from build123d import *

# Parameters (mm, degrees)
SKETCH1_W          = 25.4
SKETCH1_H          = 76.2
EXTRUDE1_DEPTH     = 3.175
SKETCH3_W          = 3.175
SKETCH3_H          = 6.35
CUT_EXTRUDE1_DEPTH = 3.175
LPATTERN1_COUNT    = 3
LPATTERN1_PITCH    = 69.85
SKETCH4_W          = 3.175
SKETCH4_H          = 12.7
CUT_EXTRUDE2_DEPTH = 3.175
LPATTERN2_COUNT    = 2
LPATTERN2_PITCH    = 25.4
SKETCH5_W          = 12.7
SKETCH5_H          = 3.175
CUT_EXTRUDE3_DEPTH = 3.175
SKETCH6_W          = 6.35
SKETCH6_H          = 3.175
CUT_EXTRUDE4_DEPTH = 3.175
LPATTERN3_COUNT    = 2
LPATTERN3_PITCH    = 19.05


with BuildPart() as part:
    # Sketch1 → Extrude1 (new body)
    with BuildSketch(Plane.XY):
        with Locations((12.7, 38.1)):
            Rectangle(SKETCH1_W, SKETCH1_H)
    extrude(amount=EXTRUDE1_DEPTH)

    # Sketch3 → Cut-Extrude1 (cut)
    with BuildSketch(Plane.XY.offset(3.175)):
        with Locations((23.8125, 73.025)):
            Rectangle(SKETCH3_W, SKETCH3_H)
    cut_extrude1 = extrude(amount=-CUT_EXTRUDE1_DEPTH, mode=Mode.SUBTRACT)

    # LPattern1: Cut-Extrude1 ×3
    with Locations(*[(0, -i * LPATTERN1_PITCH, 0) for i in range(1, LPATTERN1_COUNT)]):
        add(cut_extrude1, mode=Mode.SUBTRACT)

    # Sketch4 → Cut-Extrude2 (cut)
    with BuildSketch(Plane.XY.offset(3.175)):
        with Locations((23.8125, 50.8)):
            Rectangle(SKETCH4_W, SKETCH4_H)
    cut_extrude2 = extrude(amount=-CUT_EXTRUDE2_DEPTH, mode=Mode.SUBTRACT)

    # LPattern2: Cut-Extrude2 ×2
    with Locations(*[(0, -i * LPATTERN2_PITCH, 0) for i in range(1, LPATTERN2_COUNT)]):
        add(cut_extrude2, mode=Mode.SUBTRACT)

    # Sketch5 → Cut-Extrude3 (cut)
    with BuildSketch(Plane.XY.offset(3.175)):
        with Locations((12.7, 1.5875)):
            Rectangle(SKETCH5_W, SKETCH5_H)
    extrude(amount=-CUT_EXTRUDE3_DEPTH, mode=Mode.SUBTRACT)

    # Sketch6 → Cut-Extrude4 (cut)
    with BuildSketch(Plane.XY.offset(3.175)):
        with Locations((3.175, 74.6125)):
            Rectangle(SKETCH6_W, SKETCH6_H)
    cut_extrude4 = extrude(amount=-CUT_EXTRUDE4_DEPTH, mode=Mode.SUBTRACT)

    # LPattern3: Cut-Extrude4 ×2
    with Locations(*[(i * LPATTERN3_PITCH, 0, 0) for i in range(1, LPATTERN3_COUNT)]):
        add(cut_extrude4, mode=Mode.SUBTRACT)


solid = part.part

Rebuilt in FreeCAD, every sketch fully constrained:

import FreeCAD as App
import Part
import Sketcher

V = App.Vector
Q = App.Units.Quantity

doc = App.newDocument("Part")
params = doc.addObject("Spreadsheet::Sheet", "Params")
for row, (alias, value) in enumerate([
    ("sketch1_width", "1 in"),
    ("sketch1_height", "3 in"),
    ("pad1_length", "0.125 in"),
    ("sketch2_height", "0.25 in"),
    ("sketch2_width", "0.125 in"),
    ("pocket1_length", "0.125 in"),
    ("linearpattern_pitch", "2.75 in"),
    ("sketch3_height", "0.5 in"),
    ("sketch3_width", "0.125 in"),
    ("pocket2_length", "0.125 in"),
    ("linearpattern2_pitch", "1 in"),
    ("sketch4_width", "0.5 in"),
    ("sketch4_height", "0.125 in"),
    ("pocket3_length", "0.125 in"),
    ("sketch5_width", "0.25 in"),
    ("sketch5_height", "0.125 in"),
    ("pocket4_length", "0.125 in"),
    ("linearpattern3_pitch", "0.75 in"),
], start=1):
    params.set(f"A{row}", alias)
    params.set(f"B{row}", "=" + value)
    params.setAlias(f"B{row}", alias)

body = doc.addObject("PartDesign::Body", "Body")

# Sketch on XY plane
sketch1 = body.newObject("Sketcher::SketchObject", "Sketch")
sketch1.AttachmentSupport = (doc.getObject("XY_Plane"), [""])
sketch1.MapMode = "FlatFace"
sketch1.addGeometry(Part.LineSegment(V(0, 76, 0), V(0, 0, 0)), False)
sketch1.addGeometry(Part.LineSegment(V(0, 0, 0), V(25, 0, 0)), False)
sketch1.addGeometry(Part.LineSegment(V(25, 0, 0), V(25, 76, 0)), False)
sketch1.addGeometry(Part.LineSegment(V(25, 76, 0), V(0, 76, 0)), False)
sketch1.addConstraint(Sketcher.Constraint("Coincident", 0, 2, 1, 1))
sketch1.addConstraint(Sketcher.Constraint("Coincident", 1, 2, 2, 1))
sketch1.addConstraint(Sketcher.Constraint("Coincident", 2, 2, 3, 1))
sketch1.addConstraint(Sketcher.Constraint("Coincident", 3, 2, 0, 1))
sketch1.addConstraint(Sketcher.Constraint("Vertical", 0))
sketch1.addConstraint(Sketcher.Constraint("Horizontal", 1))
sketch1.addConstraint(Sketcher.Constraint("Vertical", 2))
sketch1.addConstraint(Sketcher.Constraint("Horizontal", 3))
sketch1.addConstraint(Sketcher.Constraint("Coincident", 0, 2, -1, 1))
sketch1.addConstraint(Sketcher.Constraint("DistanceX", 1, 1, 1, 2, Q("1 in")))
sketch1.addConstraint(Sketcher.Constraint("DistanceY", 0, 2, 0, 1, Q("3 in")))
sketch1.setExpression("Constraints[9]", "Params.sketch1_width")
sketch1.setExpression("Constraints[10]", "Params.sketch1_height")
pad1 = body.newObject("PartDesign::Pad", "Pad")
pad1.Profile = sketch1
pad1.setExpression("Length", "Params.pad1_length")

# Sketch on XY plane
sketch2 = body.newObject("Sketcher::SketchObject", "Sketch001")
sketch2.AttachmentSupport = (doc.getObject("XY_Plane"), [""])
sketch2.MapMode = "FlatFace"
sketch2.AttachmentOffset = App.Placement(V(0, 0, 0.125 * 25.4), App.Rotation())
sketch2.addGeometry(Part.LineSegment(V(22.2, 76.2, 0), V(22.2, 69.8, 0)), False)
sketch2.addGeometry(Part.LineSegment(V(22.2, 69.8, 0), V(25.4, 69.8, 0)), False)
sketch2.addGeometry(Part.LineSegment(V(25.4, 69.8, 0), V(25.4, 76.2, 0)), False)
sketch2.addGeometry(Part.LineSegment(V(25.4, 76.2, 0), V(22.2, 76.2, 0)), False)
sketch2.addConstraint(Sketcher.Constraint("Coincident", 0, 2, 1, 1))
sketch2.addConstraint(Sketcher.Constraint("Coincident", 1, 2, 2, 1))
sketch2.addConstraint(Sketcher.Constraint("Coincident", 2, 2, 3, 1))
sketch2.addConstraint(Sketcher.Constraint("Coincident", 3, 2, 0, 1))
sketch2.addConstraint(Sketcher.Constraint("Vertical", 0))
sketch2.addConstraint(Sketcher.Constraint("Horizontal", 1))
sketch2.addConstraint(Sketcher.Constraint("Vertical", 2))
sketch2.addConstraint(Sketcher.Constraint("Horizontal", 3))
sketch2.addConstraint(Sketcher.Constraint("DistanceX", -1, 1, 1, 2, Q("1 in")))
sketch2.addConstraint(Sketcher.Constraint("DistanceY", -1, 1, 2, 2, Q("3 in")))
sketch2.addConstraint(Sketcher.Constraint("DistanceY", 0, 2, 0, 1, Q("0.25 in")))
sketch2.addConstraint(Sketcher.Constraint("DistanceX", 1, 1, 1, 2, Q("0.125 in")))
sketch2.setExpression("Constraints[10]", "Params.sketch2_height")
sketch2.setExpression("Constraints[11]", "Params.sketch2_width")
pocket1 = body.newObject("PartDesign::Pocket", "Pocket")
pocket1.Profile = sketch2
pocket1.setExpression("Length", "Params.pocket1_length")
doc.recompute()

linearpattern = body.newObject("PartDesign::LinearPattern", "LinearPattern")
linearpattern.Originals = [pocket1]
linearpattern.Direction = (doc.getObject("Y_Axis"), [""])
linearpattern.Mode = "offset"
linearpattern.setExpression("Offset", "Params.linearpattern_pitch")
linearpattern.Occurrences = 3
linearpattern.Reversed = True
body.Tip = linearpattern

# Sketch on XY plane
sketch3 = body.newObject("Sketcher::SketchObject", "Sketch002")
sketch3.AttachmentSupport = (doc.getObject("XY_Plane"), [""])
sketch3.MapMode = "FlatFace"
sketch3.AttachmentOffset = App.Placement(V(0, 0, 0.125 * 25.4), App.Rotation())
sketch3.addGeometry(Part.LineSegment(V(22.2, 57.1, 0), V(22.2, 44.5, 0)), False)
sketch3.addGeometry(Part.LineSegment(V(22.2, 44.5, 0), V(25.4, 44.5, 0)), False)
sketch3.addGeometry(Part.LineSegment(V(25.4, 44.5, 0), V(25.4, 57.1, 0)), False)
sketch3.addGeometry(Part.LineSegment(V(25.4, 57.1, 0), V(22.2, 57.1, 0)), False)
sketch3.addConstraint(Sketcher.Constraint("Coincident", 0, 2, 1, 1))
sketch3.addConstraint(Sketcher.Constraint("Coincident", 1, 2, 2, 1))
sketch3.addConstraint(Sketcher.Constraint("Coincident", 2, 2, 3, 1))
sketch3.addConstraint(Sketcher.Constraint("Coincident", 3, 2, 0, 1))
sketch3.addConstraint(Sketcher.Constraint("Vertical", 0))
sketch3.addConstraint(Sketcher.Constraint("Horizontal", 1))
sketch3.addConstraint(Sketcher.Constraint("Vertical", 2))
sketch3.addConstraint(Sketcher.Constraint("Horizontal", 3))
sketch3.addConstraint(Sketcher.Constraint("DistanceY", 0, 2, 0, 1, Q("0.5 in")))
sketch3.addConstraint(Sketcher.Constraint("DistanceX", -1, 1, 1, 2, Q("1 in")))
sketch3.addConstraint(Sketcher.Constraint("DistanceX", 1, 1, 1, 2, Q("0.125 in")))
sketch3.addConstraint(Sketcher.Constraint("DistanceY", -1, 1, 0, 2, Q("1.75 in")))
sketch3.setExpression("Constraints[8]", "Params.sketch3_height")
sketch3.setExpression("Constraints[10]", "Params.sketch3_width")
pocket2 = body.newObject("PartDesign::Pocket", "Pocket001")
pocket2.Profile = sketch3
pocket2.setExpression("Length", "Params.pocket2_length")
doc.recompute()

linearpattern2 = body.newObject("PartDesign::LinearPattern", "LinearPattern001")
linearpattern2.Originals = [pocket2]
linearpattern2.Direction = (doc.getObject("Y_Axis"), [""])
linearpattern2.Mode = "offset"
linearpattern2.setExpression("Offset", "Params.linearpattern2_pitch")
linearpattern2.Occurrences = 2
linearpattern2.Reversed = True
body.Tip = linearpattern2

# Sketch on XY plane
sketch4 = body.newObject("Sketcher::SketchObject", "Sketch003")
sketch4.AttachmentSupport = (doc.getObject("XY_Plane"), [""])
sketch4.MapMode = "FlatFace"
sketch4.AttachmentOffset = App.Placement(V(0, 0, 0.125 * 25.4), App.Rotation())
sketch4.addGeometry(Part.LineSegment(V(6.3, 3.2, 0), V(6.3, 0, 0)), False)
sketch4.addGeometry(Part.LineSegment(V(6.3, 0, 0), V(19.1, 0, 0)), False)
sketch4.addGeometry(Part.LineSegment(V(19.1, 0, 0), V(19.1, 3.2, 0)), False)
sketch4.addGeometry(Part.LineSegment(V(19.1, 3.2, 0), V(6.3, 3.2, 0)), False)
sketch4.addConstraint(Sketcher.Constraint("Coincident", 0, 2, 1, 1))
sketch4.addConstraint(Sketcher.Constraint("Coincident", 1, 2, 2, 1))
sketch4.addConstraint(Sketcher.Constraint("Coincident", 2, 2, 3, 1))
sketch4.addConstraint(Sketcher.Constraint("Coincident", 3, 2, 0, 1))
sketch4.addConstraint(Sketcher.Constraint("Vertical", 0))
sketch4.addConstraint(Sketcher.Constraint("Horizontal", 1))
sketch4.addConstraint(Sketcher.Constraint("Vertical", 2))
sketch4.addConstraint(Sketcher.Constraint("Horizontal", 3))
sketch4.addConstraint(Sketcher.Constraint("PointOnObject", 0, 2, -1))
sketch4.addConstraint(Sketcher.Constraint("DistanceX", 1, 1, 1, 2, Q("0.5 in")))
sketch4.addConstraint(Sketcher.Constraint("DistanceY", 0, 2, 0, 1, Q("0.125 in")))
sketch4.addConstraint(Sketcher.Constraint("DistanceX", -1, 1, 0, 2, Q("0.25 in")))
sketch4.setExpression("Constraints[9]", "Params.sketch4_width")
sketch4.setExpression("Constraints[10]", "Params.sketch4_height")
pocket3 = body.newObject("PartDesign::Pocket", "Pocket002")
pocket3.Profile = sketch4
pocket3.setExpression("Length", "Params.pocket3_length")

# Sketch on XY plane
sketch5 = body.newObject("Sketcher::SketchObject", "Sketch004")
sketch5.AttachmentSupport = (doc.getObject("XY_Plane"), [""])
sketch5.MapMode = "FlatFace"
sketch5.AttachmentOffset = App.Placement(V(0, 0, 0.125 * 25.4), App.Rotation())
sketch5.addGeometry(Part.LineSegment(V(0, 76.2, 0), V(0, 73, 0)), False)
sketch5.addGeometry(Part.LineSegment(V(0, 73, 0), V(6.3, 73, 0)), False)
sketch5.addGeometry(Part.LineSegment(V(6.3, 73, 0), V(6.3, 76.2, 0)), False)
sketch5.addGeometry(Part.LineSegment(V(6.3, 76.2, 0), V(0, 76.2, 0)), False)
sketch5.addConstraint(Sketcher.Constraint("Coincident", 0, 2, 1, 1))
sketch5.addConstraint(Sketcher.Constraint("Coincident", 1, 2, 2, 1))
sketch5.addConstraint(Sketcher.Constraint("Coincident", 2, 2, 3, 1))
sketch5.addConstraint(Sketcher.Constraint("Coincident", 3, 2, 0, 1))
sketch5.addConstraint(Sketcher.Constraint("Vertical", 0))
sketch5.addConstraint(Sketcher.Constraint("Horizontal", 1))
sketch5.addConstraint(Sketcher.Constraint("Vertical", 2))
sketch5.addConstraint(Sketcher.Constraint("Horizontal", 3))
sketch5.addConstraint(Sketcher.Constraint("PointOnObject", 0, 2, -2))
sketch5.addConstraint(Sketcher.Constraint("DistanceY", -1, 1, 2, 2, Q("3 in")))
sketch5.addConstraint(Sketcher.Constraint("DistanceX", 1, 1, 1, 2, Q("0.25 in")))
sketch5.addConstraint(Sketcher.Constraint("DistanceY", 0, 2, 0, 1, Q("0.125 in")))
sketch5.setExpression("Constraints[10]", "Params.sketch5_width")
sketch5.setExpression("Constraints[11]", "Params.sketch5_height")
pocket4 = body.newObject("PartDesign::Pocket", "Pocket003")
pocket4.Profile = sketch5
pocket4.setExpression("Length", "Params.pocket4_length")
doc.recompute()

linearpattern3 = body.newObject("PartDesign::LinearPattern", "LinearPattern002")
linearpattern3.Originals = [pocket4]
linearpattern3.Direction = (doc.getObject("X_Axis"), [""])
linearpattern3.Mode = "offset"
linearpattern3.setExpression("Offset", "Params.linearpattern3_pitch")
linearpattern3.Occurrences = 2
body.Tip = linearpattern3

doc.recompute()
